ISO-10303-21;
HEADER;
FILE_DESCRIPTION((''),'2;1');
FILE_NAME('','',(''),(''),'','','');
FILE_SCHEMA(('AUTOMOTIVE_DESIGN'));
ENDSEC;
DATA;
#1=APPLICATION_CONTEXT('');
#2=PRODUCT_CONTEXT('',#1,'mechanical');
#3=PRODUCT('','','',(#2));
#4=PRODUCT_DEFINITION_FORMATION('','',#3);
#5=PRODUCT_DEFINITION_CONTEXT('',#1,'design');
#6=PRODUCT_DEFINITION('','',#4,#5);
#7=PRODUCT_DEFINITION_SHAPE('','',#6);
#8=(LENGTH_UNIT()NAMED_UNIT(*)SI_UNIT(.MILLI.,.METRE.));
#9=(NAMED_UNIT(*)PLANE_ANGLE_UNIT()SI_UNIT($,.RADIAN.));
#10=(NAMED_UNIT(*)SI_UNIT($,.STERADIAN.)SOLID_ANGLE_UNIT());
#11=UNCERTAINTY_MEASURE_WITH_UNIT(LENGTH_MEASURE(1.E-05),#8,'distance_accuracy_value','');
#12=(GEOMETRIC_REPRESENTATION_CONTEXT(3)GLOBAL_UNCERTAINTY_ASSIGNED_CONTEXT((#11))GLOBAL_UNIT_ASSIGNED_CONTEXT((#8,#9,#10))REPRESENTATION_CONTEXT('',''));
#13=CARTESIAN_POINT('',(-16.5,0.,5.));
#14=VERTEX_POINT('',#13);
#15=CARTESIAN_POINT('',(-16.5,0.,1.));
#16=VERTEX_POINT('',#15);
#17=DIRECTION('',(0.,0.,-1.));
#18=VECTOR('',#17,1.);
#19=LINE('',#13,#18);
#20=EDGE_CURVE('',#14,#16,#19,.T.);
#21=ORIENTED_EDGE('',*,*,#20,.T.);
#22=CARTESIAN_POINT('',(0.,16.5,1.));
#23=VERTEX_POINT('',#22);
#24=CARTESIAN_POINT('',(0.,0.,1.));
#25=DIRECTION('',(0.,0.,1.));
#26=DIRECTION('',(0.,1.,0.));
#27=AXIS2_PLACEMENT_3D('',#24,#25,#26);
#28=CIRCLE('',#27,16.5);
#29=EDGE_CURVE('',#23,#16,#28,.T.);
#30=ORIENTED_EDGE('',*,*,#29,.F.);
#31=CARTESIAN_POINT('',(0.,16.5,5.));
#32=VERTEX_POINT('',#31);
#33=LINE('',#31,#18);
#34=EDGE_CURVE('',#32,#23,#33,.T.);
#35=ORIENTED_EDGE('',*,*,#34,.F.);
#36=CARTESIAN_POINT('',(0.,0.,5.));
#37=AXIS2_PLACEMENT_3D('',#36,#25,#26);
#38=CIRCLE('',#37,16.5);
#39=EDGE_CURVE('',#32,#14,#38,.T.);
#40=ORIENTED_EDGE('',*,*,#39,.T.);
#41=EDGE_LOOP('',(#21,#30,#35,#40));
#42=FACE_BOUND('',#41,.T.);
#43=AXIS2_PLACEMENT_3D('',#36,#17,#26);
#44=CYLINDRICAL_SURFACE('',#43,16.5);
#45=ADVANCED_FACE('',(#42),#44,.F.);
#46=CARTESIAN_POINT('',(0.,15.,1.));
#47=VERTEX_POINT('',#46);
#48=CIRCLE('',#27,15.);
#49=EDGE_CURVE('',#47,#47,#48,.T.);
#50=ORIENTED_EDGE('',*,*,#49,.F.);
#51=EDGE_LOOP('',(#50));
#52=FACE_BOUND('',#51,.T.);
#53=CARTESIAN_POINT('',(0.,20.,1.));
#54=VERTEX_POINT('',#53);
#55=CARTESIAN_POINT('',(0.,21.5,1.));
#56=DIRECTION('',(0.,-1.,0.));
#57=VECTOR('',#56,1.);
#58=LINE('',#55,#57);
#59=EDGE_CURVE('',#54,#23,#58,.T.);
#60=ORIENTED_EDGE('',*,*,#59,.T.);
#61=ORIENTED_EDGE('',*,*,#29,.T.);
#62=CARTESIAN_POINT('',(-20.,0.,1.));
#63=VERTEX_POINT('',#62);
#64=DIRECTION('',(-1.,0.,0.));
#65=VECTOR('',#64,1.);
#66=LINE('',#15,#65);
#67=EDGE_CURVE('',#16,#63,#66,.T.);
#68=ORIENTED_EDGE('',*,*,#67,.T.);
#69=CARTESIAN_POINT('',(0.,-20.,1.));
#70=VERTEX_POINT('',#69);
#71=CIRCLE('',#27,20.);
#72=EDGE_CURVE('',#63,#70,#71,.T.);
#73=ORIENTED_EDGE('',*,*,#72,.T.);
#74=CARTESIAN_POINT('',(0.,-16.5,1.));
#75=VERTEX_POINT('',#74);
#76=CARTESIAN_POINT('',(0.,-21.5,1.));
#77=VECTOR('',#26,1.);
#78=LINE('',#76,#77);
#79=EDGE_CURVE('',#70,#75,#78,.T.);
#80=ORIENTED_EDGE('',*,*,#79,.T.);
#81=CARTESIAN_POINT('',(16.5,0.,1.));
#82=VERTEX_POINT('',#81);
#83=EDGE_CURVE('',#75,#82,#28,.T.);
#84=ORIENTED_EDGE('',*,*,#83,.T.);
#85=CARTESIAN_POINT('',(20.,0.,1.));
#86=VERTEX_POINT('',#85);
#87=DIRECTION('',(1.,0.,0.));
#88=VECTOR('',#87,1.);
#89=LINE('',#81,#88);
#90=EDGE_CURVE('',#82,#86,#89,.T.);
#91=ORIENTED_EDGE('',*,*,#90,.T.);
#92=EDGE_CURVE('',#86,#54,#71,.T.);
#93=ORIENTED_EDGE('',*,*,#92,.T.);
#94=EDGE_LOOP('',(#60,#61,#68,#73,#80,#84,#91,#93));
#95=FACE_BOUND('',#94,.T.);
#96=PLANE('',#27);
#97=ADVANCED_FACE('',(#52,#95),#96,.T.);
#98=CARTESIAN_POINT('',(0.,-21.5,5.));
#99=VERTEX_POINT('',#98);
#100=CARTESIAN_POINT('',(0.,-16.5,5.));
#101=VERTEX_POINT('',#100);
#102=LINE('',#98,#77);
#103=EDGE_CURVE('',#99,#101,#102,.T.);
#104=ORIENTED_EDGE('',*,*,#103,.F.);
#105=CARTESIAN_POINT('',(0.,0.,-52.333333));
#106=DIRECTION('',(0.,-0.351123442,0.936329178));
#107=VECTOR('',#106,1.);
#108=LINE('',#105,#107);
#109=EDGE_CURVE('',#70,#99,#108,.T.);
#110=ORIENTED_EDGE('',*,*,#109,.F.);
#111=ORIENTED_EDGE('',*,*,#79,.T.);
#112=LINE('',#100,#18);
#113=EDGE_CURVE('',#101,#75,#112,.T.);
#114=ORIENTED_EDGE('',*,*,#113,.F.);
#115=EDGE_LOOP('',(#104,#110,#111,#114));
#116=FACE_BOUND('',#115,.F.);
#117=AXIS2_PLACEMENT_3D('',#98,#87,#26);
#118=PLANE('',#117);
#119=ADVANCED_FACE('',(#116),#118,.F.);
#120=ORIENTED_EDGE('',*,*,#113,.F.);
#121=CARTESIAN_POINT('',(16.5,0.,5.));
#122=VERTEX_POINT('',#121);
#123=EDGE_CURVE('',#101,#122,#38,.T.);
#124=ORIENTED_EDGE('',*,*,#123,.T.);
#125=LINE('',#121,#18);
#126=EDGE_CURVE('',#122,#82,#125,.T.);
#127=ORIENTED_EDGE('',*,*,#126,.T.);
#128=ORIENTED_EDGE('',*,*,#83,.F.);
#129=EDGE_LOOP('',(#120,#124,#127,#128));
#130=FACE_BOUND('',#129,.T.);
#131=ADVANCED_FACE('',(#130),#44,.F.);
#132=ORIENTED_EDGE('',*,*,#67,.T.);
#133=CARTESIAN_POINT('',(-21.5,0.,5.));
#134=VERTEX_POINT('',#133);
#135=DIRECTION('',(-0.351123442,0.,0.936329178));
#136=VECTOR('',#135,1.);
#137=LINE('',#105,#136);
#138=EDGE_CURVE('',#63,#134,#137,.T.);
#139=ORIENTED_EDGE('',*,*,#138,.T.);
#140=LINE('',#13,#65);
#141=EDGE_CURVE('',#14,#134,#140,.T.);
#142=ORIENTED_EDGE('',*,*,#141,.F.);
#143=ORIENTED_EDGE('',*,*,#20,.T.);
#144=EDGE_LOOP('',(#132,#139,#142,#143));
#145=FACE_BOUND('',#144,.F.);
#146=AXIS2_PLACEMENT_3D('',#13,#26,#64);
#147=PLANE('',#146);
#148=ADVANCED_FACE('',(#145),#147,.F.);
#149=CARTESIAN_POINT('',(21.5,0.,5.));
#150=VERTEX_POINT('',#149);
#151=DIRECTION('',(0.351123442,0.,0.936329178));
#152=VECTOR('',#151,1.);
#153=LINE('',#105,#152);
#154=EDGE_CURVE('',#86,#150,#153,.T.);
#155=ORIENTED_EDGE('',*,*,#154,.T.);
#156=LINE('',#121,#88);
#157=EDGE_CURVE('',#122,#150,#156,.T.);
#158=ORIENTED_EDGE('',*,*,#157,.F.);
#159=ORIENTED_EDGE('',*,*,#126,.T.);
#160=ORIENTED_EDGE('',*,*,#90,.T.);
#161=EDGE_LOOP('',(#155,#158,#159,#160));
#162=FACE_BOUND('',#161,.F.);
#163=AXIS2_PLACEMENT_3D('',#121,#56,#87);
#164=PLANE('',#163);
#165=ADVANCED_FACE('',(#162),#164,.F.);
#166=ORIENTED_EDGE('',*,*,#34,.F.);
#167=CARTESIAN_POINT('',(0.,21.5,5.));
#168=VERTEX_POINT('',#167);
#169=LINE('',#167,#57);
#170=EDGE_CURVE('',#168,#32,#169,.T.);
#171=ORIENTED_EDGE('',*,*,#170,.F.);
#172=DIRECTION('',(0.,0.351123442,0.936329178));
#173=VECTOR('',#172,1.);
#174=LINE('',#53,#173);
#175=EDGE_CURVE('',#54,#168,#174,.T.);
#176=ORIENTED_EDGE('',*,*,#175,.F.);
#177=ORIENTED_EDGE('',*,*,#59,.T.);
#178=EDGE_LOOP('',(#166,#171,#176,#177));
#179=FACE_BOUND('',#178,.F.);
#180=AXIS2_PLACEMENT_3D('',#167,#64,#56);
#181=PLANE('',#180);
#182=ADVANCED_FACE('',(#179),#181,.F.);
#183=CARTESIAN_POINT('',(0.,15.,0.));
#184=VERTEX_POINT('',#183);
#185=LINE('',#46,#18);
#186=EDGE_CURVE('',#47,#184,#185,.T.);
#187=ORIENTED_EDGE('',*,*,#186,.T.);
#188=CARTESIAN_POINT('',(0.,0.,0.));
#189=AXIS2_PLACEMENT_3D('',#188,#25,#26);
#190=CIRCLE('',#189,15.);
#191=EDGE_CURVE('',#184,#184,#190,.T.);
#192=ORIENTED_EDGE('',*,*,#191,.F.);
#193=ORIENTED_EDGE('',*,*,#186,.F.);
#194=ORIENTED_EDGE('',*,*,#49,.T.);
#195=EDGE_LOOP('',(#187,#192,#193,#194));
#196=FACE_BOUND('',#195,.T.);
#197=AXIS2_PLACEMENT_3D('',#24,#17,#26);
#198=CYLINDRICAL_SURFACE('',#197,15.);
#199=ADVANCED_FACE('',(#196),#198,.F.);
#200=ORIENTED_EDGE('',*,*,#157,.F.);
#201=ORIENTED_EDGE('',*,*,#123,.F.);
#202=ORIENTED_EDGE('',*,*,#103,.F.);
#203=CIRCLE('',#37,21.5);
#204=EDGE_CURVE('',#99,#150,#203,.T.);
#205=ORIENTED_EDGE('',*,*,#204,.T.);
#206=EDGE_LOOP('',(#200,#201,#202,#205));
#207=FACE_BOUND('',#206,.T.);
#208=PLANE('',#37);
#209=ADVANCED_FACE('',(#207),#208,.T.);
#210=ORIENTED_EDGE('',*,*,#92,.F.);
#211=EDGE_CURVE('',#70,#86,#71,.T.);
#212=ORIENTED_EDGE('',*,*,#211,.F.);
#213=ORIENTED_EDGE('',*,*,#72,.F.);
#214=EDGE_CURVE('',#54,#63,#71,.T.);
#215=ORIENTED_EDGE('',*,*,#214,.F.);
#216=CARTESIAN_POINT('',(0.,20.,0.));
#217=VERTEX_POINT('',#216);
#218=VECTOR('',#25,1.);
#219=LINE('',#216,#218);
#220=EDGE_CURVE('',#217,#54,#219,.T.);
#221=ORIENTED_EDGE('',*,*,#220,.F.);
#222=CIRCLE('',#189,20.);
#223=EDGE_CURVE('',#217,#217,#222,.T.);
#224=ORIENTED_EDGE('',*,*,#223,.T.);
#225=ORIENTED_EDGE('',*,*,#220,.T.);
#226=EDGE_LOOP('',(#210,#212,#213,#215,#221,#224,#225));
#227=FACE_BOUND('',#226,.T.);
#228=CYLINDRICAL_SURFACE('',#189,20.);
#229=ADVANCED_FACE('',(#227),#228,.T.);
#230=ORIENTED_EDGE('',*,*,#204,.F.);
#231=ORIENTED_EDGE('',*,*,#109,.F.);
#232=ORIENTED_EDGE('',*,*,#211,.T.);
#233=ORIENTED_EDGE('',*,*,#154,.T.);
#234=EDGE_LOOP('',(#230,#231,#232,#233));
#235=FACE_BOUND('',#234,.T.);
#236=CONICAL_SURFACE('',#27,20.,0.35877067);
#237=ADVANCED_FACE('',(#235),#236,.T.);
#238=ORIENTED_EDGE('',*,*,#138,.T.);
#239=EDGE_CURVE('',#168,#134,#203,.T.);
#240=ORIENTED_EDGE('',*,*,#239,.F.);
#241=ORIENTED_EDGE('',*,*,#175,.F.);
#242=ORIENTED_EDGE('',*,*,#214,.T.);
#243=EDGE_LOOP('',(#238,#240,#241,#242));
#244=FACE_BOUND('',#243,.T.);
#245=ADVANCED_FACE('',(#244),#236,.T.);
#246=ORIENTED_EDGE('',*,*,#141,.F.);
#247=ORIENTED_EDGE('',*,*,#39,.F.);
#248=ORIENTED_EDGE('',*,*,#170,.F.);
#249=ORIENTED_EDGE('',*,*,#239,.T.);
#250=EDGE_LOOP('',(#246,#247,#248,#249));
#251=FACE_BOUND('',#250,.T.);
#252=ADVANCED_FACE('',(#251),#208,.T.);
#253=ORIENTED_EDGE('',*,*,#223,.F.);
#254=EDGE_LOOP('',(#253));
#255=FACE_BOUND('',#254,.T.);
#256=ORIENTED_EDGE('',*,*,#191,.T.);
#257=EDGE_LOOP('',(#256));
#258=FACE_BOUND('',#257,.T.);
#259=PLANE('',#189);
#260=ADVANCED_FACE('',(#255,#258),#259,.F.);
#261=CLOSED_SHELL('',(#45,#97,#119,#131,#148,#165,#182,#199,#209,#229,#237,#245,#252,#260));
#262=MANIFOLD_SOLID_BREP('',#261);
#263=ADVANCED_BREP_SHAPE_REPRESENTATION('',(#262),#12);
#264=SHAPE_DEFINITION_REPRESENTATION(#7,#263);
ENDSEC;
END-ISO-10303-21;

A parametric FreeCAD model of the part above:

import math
import FreeCAD as App
import Part
import Sketcher

doc = App.newDocument("Part")
body = doc.addObject("PartDesign::Body", "Body")

# Sketch on YZ plane
sketch1 = doc.addObject("Sketcher::SketchObject", "Sketch")
body.addObject(sketch1)
sketch1.AttachmentSupport = (doc.YZ_Plane, [""])
sketch1.MapMode = "FlatFace"
sketch1.addGeometry(Part.LineSegment(App.Vector(15, 1, 0), App.Vector(15, 0, 0)), False)
sketch1.addGeometry(Part.LineSegment(App.Vector(15, 0, 0), App.Vector(20, 0, 0)), False)
sketch1.addGeometry(Part.LineSegment(App.Vector(20, 0, 0), App.Vector(20, 1, 0)), False)
sketch1.addGeometry(Part.LineSegment(App.Vector(20, 1, 0), App.Vector(21.5, 5, 0)), False)
sketch1.addGeometry(Part.LineSegment(App.Vector(21.5, 5, 0), App.Vector(16.5, 5, 0)), False)
sketch1.addGeometry(Part.LineSegment(App.Vector(16.5, 5, 0), App.Vector(16.5, 1, 0)), False)
sketch1.addGeometry(Part.LineSegment(App.Vector(16.5, 1, 0), App.Vector(15, 1, 0)), False)
sketch1.addConstraint(Sketcher.Constraint("Coincident", 0, 2, 1, 1))
sketch1.addConstraint(Sketcher.Constraint("Coincident", 1, 2, 2, 1))
sketch1.addConstraint(Sketcher.Constraint("Coincident", 2, 2, 3, 1))
sketch1.addConstraint(Sketcher.Constraint("Coincident", 3, 2, 4, 1))
sketch1.addConstraint(Sketcher.Constraint("Coincident", 4, 2, 5, 1))
sketch1.addConstraint(Sketcher.Constraint("Coincident", 5, 2, 6, 1))
sketch1.addConstraint(Sketcher.Constraint("Coincident", 6, 2, 0, 1))
sketch1.addConstraint(Sketcher.Constraint("Vertical", 0))
sketch1.addConstraint(Sketcher.Constraint("Horizontal", 1))
sketch1.addConstraint(Sketcher.Constraint("Vertical", 2))
sketch1.addConstraint(Sketcher.Constraint("Horizontal", 4))
sketch1.addConstraint(Sketcher.Constraint("Vertical", 5))
sketch1.addConstraint(Sketcher.Constraint("Horizontal", 6))
sketch1.addConstraint(Sketcher.Constraint("PointOnObject", 0, 2, -1))
sketch1.addConstraint(Sketcher.Constraint("Horizontal", 2, 2, 5, 2))
sketch1.addConstraint(Sketcher.Constraint("Equal", 1, 4))
sketch1.addConstraint(Sketcher.Constraint("DistanceX", 1, 1, 1, 2, 5.0))
sketch1.addConstraint(Sketcher.Constraint("DistanceY", 0, 2, 0, 1, 1.0))
sketch1.addConstraint(Sketcher.Constraint("DistanceY", 5, 2, 5, 1, 4.0))
sketch1.addConstraint(Sketcher.Constraint("DistanceX", 6, 2, 6, 1, 1.5))
sketch1.addConstraint(Sketcher.Constraint("DistanceX", -1, 1, 0, 2, 15.0))
revolution = doc.addObject("PartDesign::Revolution", "Revolution")
body.addObject(revolution)
revolution.Profile = sketch1
revolution.ReferenceAxis = (sketch1, ["V_Axis"])
revolution.Angle = 360

# Sketch on XY plane
sketch2 = doc.addObject("Sketcher::SketchObject", "Sketch001")
body.addObject(sketch2)
sketch2.AttachmentSupport = (doc.XY_Plane, [""])
sketch2.MapMode = "FlatFace"
sketch2.AttachmentOffset = App.Placement(App.Vector(0, 0, 5), App.Rotation())
sketch2.addGeometry(Part.LineSegment(App.Vector(0, -22, 0), App.Vector(0, -16, 0)), False)
sketch2.addGeometry(Part.ArcOfCircle(Part.Circle(App.Vector(0, 0, 0), App.Vector(0, 0, 1), 16), math.radians(180), math.radians(270)), False)
sketch2.addGeometry(Part.LineSegment(App.Vector(-16, 0, 0), App.Vector(-22, 0, 0)), False)
sketch2.addGeometry(Part.ArcOfCircle(Part.Circle(App.Vector(0, 0, 0), App.Vector(0, 0, 1), 21), math.radians(180), math.radians(270)), False)
sketch2.addGeometry(Part.LineSegment(App.Vector(0, 22, 0), App.Vector(0, 16, 0)), False)
sketch2.addGeometry(Part.ArcOfCircle(Part.Circle(App.Vector(0, 0, 0), App.Vector(0, 0, 1), 16), math.radians(0), math.radians(90)), False)
sketch2.addGeometry(Part.LineSegment(App.Vector(16, 0, 0), App.Vector(22, 0, 0)), False)
sketch2.addGeometry(Part.ArcOfCircle(Part.Circle(App.Vector(0, 0, 0), App.Vector(0, 0, 1), 21), math.radians(0), math.radians(90)), False)
sketch2.addConstraint(Sketcher.Constraint("Coincident", 0, 2, 1, 2))
sketch2.addConstraint(Sketcher.Constraint("Coincident", 1, 1, 2, 1))
sketch2.addConstraint(Sketcher.Constraint("Coincident", 2, 2, 3, 1))
sketch2.addConstraint(Sketcher.Constraint("Coincident", 3, 2, 0, 1))
sketch2.addConstraint(Sketcher.Constraint("Coincident", 4, 2, 5, 2))
sketch2.addConstraint(Sketcher.Constraint("Coincident", 5, 1, 6, 1))
sketch2.addConstraint(Sketcher.Constraint("Coincident", 6, 2, 7, 1))
sketch2.addConstraint(Sketcher.Constraint("Coincident", 7, 2, 4, 1))
sketch2.addConstraint(Sketcher.Constraint("Vertical", 0))
sketch2.addConstraint(Sketcher.Constraint("Horizontal", 2))
sketch2.addConstraint(Sketcher.Constraint("Vertical", 4))
sketch2.addConstraint(Sketcher.Constraint("Horizontal", 6))
sketch2.addConstraint(Sketcher.Constraint("Coincident", 1, 3, -1, 1))
sketch2.addConstraint(Sketcher.Constraint("Coincident", 3, 3, -1, 1))
sketch2.addConstraint(Sketcher.Constraint("Coincident", 5, 3, -1, 1))
sketch2.addConstraint(Sketcher.Constraint("Coincident", 7, 3, -1, 1))
sketch2.addConstraint(Sketcher.Constraint("Equal", 1, 5))
sketch2.addConstraint(Sketcher.Constraint("Equal", 3, 7))
sketch2.addConstraint(Sketcher.Constraint("PointOnObject", 0, 2, -2))
sketch2.addConstraint(Sketcher.Constraint("PointOnObject", 1, 1, -1))
sketch2.addConstraint(Sketcher.Constraint("PointOnObject", 4, 2, -2))
sketch2.addConstraint(Sketcher.Constraint("PointOnObject", 5, 1, -1))
sketch2.addConstraint(Sketcher.Constraint("Radius", 1, 16.5))
sketch2.addConstraint(Sketcher.Constraint("Radius", 3, 21.499999))
pocket1 = doc.addObject("PartDesign::Pocket", "Pocket")
body.addObject(pocket1)
pocket1.Profile = sketch2
pocket1.Length = 4

doc.recompute()
